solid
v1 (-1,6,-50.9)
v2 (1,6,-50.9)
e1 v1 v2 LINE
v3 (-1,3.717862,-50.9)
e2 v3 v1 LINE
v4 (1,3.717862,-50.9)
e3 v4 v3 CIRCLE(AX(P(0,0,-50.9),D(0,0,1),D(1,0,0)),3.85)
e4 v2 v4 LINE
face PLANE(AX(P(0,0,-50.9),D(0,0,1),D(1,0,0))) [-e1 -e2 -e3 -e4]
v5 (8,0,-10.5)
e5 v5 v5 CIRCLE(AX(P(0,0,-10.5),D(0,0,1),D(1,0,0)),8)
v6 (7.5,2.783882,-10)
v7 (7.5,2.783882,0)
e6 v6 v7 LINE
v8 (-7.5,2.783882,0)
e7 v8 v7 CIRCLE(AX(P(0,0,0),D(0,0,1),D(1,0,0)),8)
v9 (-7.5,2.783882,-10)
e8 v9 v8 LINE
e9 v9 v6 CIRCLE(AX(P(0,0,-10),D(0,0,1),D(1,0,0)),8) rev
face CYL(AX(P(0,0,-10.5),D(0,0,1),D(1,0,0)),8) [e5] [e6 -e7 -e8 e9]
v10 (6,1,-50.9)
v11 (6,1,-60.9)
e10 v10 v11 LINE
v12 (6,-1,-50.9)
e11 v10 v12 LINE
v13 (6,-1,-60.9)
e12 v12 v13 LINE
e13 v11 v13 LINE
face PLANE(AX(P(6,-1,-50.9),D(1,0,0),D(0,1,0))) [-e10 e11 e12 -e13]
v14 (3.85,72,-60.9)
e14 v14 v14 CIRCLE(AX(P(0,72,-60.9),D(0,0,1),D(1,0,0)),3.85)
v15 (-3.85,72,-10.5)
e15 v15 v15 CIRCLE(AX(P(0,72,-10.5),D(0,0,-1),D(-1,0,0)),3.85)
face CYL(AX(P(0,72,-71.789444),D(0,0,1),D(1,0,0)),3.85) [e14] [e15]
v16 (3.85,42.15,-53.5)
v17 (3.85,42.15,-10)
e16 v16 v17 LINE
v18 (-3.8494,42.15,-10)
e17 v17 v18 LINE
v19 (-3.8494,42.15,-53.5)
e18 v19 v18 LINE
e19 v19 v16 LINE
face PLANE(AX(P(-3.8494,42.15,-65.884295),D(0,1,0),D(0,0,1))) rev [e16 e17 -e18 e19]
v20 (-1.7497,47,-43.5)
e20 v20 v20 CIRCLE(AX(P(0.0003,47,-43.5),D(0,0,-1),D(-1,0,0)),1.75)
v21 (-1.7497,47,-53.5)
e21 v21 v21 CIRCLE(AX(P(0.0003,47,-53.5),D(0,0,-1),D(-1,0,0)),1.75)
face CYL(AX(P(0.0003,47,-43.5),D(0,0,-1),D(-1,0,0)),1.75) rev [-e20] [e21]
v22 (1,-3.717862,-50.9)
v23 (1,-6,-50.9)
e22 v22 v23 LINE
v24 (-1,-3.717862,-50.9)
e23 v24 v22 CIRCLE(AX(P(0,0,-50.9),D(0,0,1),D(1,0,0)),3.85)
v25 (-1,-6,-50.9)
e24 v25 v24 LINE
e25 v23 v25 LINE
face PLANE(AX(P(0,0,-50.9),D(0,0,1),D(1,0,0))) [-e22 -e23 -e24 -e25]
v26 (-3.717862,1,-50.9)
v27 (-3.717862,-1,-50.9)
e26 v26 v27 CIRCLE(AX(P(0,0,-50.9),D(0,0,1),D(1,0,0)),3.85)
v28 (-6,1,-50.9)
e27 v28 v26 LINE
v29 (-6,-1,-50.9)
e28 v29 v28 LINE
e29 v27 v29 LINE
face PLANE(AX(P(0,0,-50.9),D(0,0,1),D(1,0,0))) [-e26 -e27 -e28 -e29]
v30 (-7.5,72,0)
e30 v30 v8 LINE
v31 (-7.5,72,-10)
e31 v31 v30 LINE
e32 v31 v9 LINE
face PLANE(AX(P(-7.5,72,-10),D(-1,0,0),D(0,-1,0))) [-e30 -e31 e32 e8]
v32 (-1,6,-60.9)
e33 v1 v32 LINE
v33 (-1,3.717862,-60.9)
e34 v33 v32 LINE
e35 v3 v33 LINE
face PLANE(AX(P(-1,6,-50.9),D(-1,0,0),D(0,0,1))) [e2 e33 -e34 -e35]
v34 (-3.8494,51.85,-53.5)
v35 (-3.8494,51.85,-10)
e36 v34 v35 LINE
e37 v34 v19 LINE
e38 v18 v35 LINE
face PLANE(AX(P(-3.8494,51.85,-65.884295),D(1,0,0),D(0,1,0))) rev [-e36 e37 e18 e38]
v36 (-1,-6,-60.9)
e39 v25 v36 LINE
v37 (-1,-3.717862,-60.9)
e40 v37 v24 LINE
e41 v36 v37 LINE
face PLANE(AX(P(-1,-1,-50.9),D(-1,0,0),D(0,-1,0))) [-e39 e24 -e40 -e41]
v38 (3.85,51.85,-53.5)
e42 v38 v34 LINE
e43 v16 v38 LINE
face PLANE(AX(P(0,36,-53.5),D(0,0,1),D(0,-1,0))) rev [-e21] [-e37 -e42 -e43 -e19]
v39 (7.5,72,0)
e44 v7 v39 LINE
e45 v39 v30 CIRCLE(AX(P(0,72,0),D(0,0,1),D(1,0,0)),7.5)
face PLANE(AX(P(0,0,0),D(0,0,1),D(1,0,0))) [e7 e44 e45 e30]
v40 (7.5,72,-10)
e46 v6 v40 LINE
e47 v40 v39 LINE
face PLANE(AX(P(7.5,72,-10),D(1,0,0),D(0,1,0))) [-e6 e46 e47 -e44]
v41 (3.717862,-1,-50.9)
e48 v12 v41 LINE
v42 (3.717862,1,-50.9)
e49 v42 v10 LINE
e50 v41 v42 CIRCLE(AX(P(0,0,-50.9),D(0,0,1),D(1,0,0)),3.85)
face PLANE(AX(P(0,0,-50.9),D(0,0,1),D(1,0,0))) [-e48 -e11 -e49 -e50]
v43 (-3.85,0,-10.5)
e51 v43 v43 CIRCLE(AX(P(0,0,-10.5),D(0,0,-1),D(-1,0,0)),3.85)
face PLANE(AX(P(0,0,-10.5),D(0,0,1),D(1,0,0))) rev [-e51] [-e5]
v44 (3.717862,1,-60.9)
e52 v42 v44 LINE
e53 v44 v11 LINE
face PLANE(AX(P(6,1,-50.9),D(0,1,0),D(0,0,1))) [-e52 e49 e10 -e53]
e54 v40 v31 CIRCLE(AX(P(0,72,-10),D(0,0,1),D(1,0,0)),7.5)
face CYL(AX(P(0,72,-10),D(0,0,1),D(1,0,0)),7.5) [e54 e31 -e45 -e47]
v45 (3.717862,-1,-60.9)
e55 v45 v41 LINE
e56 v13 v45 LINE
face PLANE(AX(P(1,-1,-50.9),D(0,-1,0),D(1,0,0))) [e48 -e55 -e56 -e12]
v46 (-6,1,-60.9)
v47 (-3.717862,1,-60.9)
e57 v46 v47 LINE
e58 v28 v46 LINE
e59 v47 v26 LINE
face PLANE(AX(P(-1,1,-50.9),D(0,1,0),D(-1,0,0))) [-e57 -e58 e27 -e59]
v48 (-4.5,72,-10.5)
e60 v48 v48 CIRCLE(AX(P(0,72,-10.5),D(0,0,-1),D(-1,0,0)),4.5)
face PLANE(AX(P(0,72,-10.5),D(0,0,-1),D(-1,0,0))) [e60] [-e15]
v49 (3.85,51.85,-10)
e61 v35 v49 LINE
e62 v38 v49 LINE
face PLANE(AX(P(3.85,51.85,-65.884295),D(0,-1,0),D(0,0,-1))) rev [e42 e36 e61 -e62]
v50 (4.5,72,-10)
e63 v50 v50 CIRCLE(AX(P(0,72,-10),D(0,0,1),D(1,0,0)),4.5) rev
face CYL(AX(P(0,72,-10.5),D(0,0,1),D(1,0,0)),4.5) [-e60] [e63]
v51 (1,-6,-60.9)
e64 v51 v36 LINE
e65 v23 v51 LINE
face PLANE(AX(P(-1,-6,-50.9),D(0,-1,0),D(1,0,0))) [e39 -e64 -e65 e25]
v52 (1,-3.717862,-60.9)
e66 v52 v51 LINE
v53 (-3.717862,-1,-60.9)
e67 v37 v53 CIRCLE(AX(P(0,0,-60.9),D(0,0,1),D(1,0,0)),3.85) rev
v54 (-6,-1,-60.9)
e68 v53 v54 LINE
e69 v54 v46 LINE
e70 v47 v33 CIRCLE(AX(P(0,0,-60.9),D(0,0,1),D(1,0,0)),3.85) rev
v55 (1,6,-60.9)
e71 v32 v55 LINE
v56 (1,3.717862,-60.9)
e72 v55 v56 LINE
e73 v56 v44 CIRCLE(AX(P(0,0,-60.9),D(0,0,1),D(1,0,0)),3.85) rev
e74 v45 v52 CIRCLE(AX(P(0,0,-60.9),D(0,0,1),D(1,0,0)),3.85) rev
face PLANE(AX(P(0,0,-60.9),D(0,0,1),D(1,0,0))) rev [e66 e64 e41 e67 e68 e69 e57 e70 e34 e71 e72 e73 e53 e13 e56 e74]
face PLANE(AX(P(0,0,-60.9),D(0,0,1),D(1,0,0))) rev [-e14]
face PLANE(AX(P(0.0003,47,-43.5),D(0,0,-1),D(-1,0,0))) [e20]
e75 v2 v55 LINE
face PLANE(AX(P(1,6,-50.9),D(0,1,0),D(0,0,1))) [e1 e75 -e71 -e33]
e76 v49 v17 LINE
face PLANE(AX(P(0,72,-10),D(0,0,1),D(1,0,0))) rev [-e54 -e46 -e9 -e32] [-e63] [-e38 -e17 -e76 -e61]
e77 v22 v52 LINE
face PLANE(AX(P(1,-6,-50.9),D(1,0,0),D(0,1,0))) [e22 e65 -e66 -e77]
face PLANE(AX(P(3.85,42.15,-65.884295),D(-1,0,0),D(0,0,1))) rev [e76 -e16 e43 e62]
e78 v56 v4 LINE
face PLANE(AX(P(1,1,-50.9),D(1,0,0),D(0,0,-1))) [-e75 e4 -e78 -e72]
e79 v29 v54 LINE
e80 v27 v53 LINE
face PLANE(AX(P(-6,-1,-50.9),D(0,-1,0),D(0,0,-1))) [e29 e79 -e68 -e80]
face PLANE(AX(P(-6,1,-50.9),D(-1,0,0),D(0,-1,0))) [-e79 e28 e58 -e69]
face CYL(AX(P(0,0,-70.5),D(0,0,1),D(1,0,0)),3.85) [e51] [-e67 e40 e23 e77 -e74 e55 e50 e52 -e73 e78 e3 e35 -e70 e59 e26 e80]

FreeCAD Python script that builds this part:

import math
import FreeCAD as App
import Part
import Sketcher

V = App.Vector
Q = App.Units.Quantity

doc = App.newDocument("Part")
body = doc.addObject("PartDesign::Body", "Body")

sketch1 = body.newObject("Sketcher::SketchObject", "Sketch")
sketch1.AttachmentSupport = (doc.getObject("XY_Plane"), [""])
sketch1.MapMode = "FlatFace"
sketch1.addGeometry(Part.Circle(V(0, 0, 0), V(0, 0, 1), 8), False)
sketch1.addConstraint([
    Sketcher.Constraint("Coincident", 0, 3, -1, 1),
    Sketcher.Constraint("Diameter", 0, Q("16 mm")),
])
pad1 = body.newObject("PartDesign::Pad", "Pad")
pad1.Profile = sketch1
pad1.Length = 10.5
pad1.Reversed = True

sketch2 = body.newObject("Sketcher::SketchObject", "Sketch001")
sketch2.AttachmentSupport = (doc.getObject("XY_Plane"), [""])
sketch2.MapMode = "FlatFace"
sketch2.AttachmentOffset = App.Placement(V(0, 0, -10.5), App.Rotation())
sketch2.addGeometry(Part.Circle(V(0, 0, 0), V(0, 0, 1), 3.9), False)
sketch2.addConstraint([
    Sketcher.Constraint("Coincident", 0, 3, -1, 1),
    Sketcher.Constraint("Diameter", 0, Q("7.7 mm")),
])
pad2 = body.newObject("PartDesign::Pad", "Pad001")
pad2.Profile = sketch2
pad2.Length = 60
pad2.Reversed = True

sketch3 = body.newObject("Sketcher::SketchObject", "Sketch002")
sketch3.AttachmentSupport = (doc.getObject("XY_Plane"), [""])
sketch3.MapMode = "FlatFace"
sketch3.AttachmentOffset = App.Placement(V(0, 0, -60.9), App.Rotation())
sketch3.addGeometry([
    Part.LineSegment(V(1, 1, 0), V(6, 1, 0)),
    Part.LineSegment(V(6, 1, 0), V(6, -1, 0)),
    Part.LineSegment(V(6, -1, 0), V(1, -1, 0)),
    Part.LineSegment(V(1, -1, 0), V(1, -6, 0)),
    Part.LineSegment(V(1, -6, 0), V(-1, -6, 0)),
    Part.LineSegment(V(-1, -6, 0), V(-1, -1, 0)),
    Part.LineSegment(V(-1, -1, 0), V(-6, -1, 0)),
    Part.LineSegment(V(-6, -1, 0), V(-6, 1, 0)),
    Part.LineSegment(V(-6, 1, 0), V(-1, 1, 0)),
    Part.LineSegment(V(-1, 1, 0), V(-1, 6, 0)),
    Part.LineSegment(V(-1, 6, 0), V(1, 6, 0)),
    Part.LineSegment(V(1, 6, 0), V(1, 1, 0)),
], False)
sketch3.addConstraint([
    Sketcher.Constraint("Coincident", 0, 2, 1, 1),
    Sketcher.Constraint("Coincident", 1, 2, 2, 1),
    Sketcher.Constraint("Coincident", 2, 2, 3, 1),
    Sketcher.Constraint("Coincident", 3, 2, 4, 1),
    Sketcher.Constraint("Coincident", 4, 2, 5, 1),
    Sketcher.Constraint("Coincident", 5, 2, 6, 1),
    Sketcher.Constraint("Coincident", 6, 2, 7, 1),
    Sketcher.Constraint("Coincident", 7, 2, 8, 1),
    Sketcher.Constraint("Coincident", 8, 2, 9, 1),
    Sketcher.Constraint("Coincident", 9, 2, 10, 1),
    Sketcher.Constraint("Coincident", 10, 2, 11, 1),
    Sketcher.Constraint("Coincident", 11, 2, 0, 1),
    Sketcher.Constraint("Horizontal", 0),
    Sketcher.Constraint("Vertical", 1),
    Sketcher.Constraint("Horizontal", 2),
    Sketcher.Constraint("Vertical", 3),
    Sketcher.Constraint("Horizontal", 4),
    Sketcher.Constraint("Vertical", 5),
    Sketcher.Constraint("Horizontal", 6),
    Sketcher.Constraint("Vertical", 7),
    Sketcher.Constraint("Horizontal", 8),
    Sketcher.Constraint("Vertical", 9),
    Sketcher.Constraint("Horizontal", 10),
    Sketcher.Constraint("Vertical", 11),
    Sketcher.Constraint("Symmetric", 0, 2, 6, 2, -1, 1),
    Sketcher.Constraint("Symmetric", 2, 2, 8, 2, -1, 1),
    Sketcher.Constraint("Symmetric", 4, 2, 10, 2, -1, 1),
    Sketcher.Constraint("Symmetric", 2, 2, 5, 2, -2),
    Sketcher.Constraint("Equal", 10, 1),
    Sketcher.Constraint("Equal", 8, 3),
    Sketcher.Constraint("DistanceX", 0, 1, 0, 2, Q("5 mm")),
    Sketcher.Constraint("DistanceX", 4, 2, 4, 1, Q("2 mm")),
])
pad3 = body.newObject("PartDesign::Pad", "Pad002")
pad3.Profile = sketch3
pad3.Length = 10

sketch4 = body.newObject("Sketcher::SketchObject", "Sketch003")
sketch4.AttachmentSupport = (doc.getObject("XY_Plane"), [""])
sketch4.MapMode = "FlatFace"
sketch4.AttachmentOffset = App.Placement(V(0, 0, -60.9), App.Rotation())
sketch4.addGeometry(Part.Circle(V(0, 0, 0), V(0, 0, 1), 3.9), False)
sketch4.addConstraint([
    Sketcher.Constraint("Coincident", 0, 3, -1, 1),
    Sketcher.Constraint("Diameter", 0, Q("7.7 mm")),
])
pocket1 = body.newObject("PartDesign::Pocket", "Pocket")
pocket1.Profile = sketch4
pocket1.Length = 9.6

sketch5 = body.newObject("Sketcher::SketchObject", "Sketch004")
sketch5.AttachmentSupport = (doc.getObject("XY_Plane"), [""])
sketch5.MapMode = "FlatFace"
sketch5.addGeometry([
    Part.LineSegment(V(-8, 72, 0), V(-8, 3, 0)),
    Part.LineSegment(V(-8, 3, 0), V(8, 3, 0)),
    Part.LineSegment(V(8, 3, 0), V(8, 72, 0)),
    Part.ArcOfCircle(Part.Circle(V(0, 72, 0), V(0, 0, 1), 8), math.radians(0), math.radians(180)),
], False)
sketch5.addConstraint([
    Sketcher.Constraint("Coincident", 0, 2, 1, 1),
    Sketcher.Constraint("Coincident", 1, 2, 2, 1),
    Sketcher.Constraint("Tangent", 2, 2, 3, 1),
    Sketcher.Constraint("Tangent", 3, 2, 0, 1),
    Sketcher.Constraint("Vertical", 0),
    Sketcher.Constraint("Horizontal", 1),
    Sketcher.Constraint("Vertical", 2),
    Sketcher.Constraint("PointOnObject", 3, 3, -2),
    Sketcher.Constraint("Radius", 3, Q("7.5 mm")),
    Sketcher.Constraint("DistanceY", -1, 1, 3, 3, Q("72 mm")),
    Sketcher.Constraint("DistanceY", 0, 2, 0, 1, Q("69.216118 mm")),
])
pad4 = body.newObject("PartDesign::Pad", "Pad003")
pad4.Profile = sketch5
pad4.Length = 10
pad4.Reversed = True

sketch6 = body.newObject("Sketcher::SketchObject", "Sketch005")
sketch6.AttachmentSupport = (doc.getObject("XY_Plane"), [""])
sketch6.MapMode = "FlatFace"
sketch6.AttachmentOffset = App.Placement(V(0, 0, -10), App.Rotation())
sketch6.addGeometry(Part.Circle(V(0, 72, 0), V(0, 0, 1), 4.5), False)
sketch6.addConstraint([
    Sketcher.Constraint("PointOnObject", 0, 3, -2),
    Sketcher.Constraint("Diameter", 0, Q("9 mm")),
    Sketcher.Constraint("DistanceY", -1, 1, 0, 3, Q("72 mm")),
])
pad5 = body.newObject("PartDesign::Pad", "Pad004")
pad5.Profile = sketch6
pad5.Length = 0.5
pad5.Reversed = True

sketch7 = body.newObject("Sketcher::SketchObject", "Sketch006")
sketch7.AttachmentSupport = (doc.getObject("XY_Plane"), [""])
sketch7.MapMode = "FlatFace"
sketch7.AttachmentOffset = App.Placement(V(0, 0, -10.5), App.Rotation())
sketch7.addGeometry(Part.Circle(V(0, 72, 0), V(0, 0, 1), 3.9), False)
sketch7.addConstraint([
    Sketcher.Constraint("PointOnObject", 0, 3, -2),
    Sketcher.Constraint("Diameter", 0, Q("7.7 mm")),
    Sketcher.Constraint("DistanceY", -1, 1, 0, 3, Q("72 mm")),
])
pad6 = body.newObject("PartDesign::Pad", "Pad005")
pad6.Profile = sketch7
pad6.Length = 50.4
pad6.Reversed = True

sketch8 = body.newObject("Sketcher::SketchObject", "Sketch007")
sketch8.AttachmentSupport = (doc.getObject("XY_Plane"), [""])
sketch8.MapMode = "FlatFace"
sketch8.AttachmentOffset = App.Placement(V(0, 0, -10), App.Rotation())
sketch8.addGeometry([
    Part.LineSegment(V(4, 52, 0), V(4, 42, 0)),
    Part.LineSegment(V(4, 42, 0), V(-4, 42, 0)),
    Part.LineSegment(V(-4, 42, 0), V(-4, 52, 0)),
    Part.LineSegment(V(-4, 52, 0), V(4, 52, 0)),
], False)
sketch8.addConstraint([
    Sketcher.Constraint("Coincident", 0, 2, 1, 1),
    Sketcher.Constraint("Coincident", 1, 2, 2, 1),
    Sketcher.Constraint("Coincident", 2, 2, 3, 1),
    Sketcher.Constraint("Coincident", 3, 2, 0, 1),
    Sketcher.Constraint("Vertical", 0),
    Sketcher.Constraint("Horizontal", 1),
    Sketcher.Constraint("Vertical", 2),
    Sketcher.Constraint("Horizontal", 3),
    Sketcher.Constraint("DistanceY", 0, 2, 0, 1, Q("9.7 mm")),
    Sketcher.Constraint("DistanceX", -1, 1, 0, 2, Q("3.85 mm")),
    Sketcher.Constraint("DistanceY", -1, 1, 0, 2, Q("42.15 mm")),
    Sketcher.Constraint("DistanceX", 1, 2, 1, 1, Q("7.6994 mm")),
])
pad7 = body.newObject("PartDesign::Pad", "Pad006")
pad7.Profile = sketch8
pad7.Length = 43.5
pad7.Reversed = True

sketch9 = body.newObject("Sketcher::SketchObject", "Sketch008")
sketch9.AttachmentSupport = (doc.getObject("XY_Plane"), [""])
sketch9.MapMode = "FlatFace"
sketch9.AttachmentOffset = App.Placement(V(0, 0, -53.5), App.Rotation())
sketch9.addGeometry(Part.Circle(V(0, 47, 0), V(0, 0, 1), 1.8), False)
sketch9.addConstraint([
    Sketcher.Constraint("Diameter", 0, Q("3.5 mm")),
    Sketcher.Constraint("DistanceY", -1, 1, 0, 3, Q("47 mm")),
    Sketcher.Constraint("DistanceX", -1, 1, 0, 3, Q("0.0003 mm")),
])
pocket2 = body.newObject("PartDesign::Pocket", "Pocket001")
pocket2.Profile = sketch9
pocket2.Length = 10
pocket2.Reversed = True

doc.recompute()
